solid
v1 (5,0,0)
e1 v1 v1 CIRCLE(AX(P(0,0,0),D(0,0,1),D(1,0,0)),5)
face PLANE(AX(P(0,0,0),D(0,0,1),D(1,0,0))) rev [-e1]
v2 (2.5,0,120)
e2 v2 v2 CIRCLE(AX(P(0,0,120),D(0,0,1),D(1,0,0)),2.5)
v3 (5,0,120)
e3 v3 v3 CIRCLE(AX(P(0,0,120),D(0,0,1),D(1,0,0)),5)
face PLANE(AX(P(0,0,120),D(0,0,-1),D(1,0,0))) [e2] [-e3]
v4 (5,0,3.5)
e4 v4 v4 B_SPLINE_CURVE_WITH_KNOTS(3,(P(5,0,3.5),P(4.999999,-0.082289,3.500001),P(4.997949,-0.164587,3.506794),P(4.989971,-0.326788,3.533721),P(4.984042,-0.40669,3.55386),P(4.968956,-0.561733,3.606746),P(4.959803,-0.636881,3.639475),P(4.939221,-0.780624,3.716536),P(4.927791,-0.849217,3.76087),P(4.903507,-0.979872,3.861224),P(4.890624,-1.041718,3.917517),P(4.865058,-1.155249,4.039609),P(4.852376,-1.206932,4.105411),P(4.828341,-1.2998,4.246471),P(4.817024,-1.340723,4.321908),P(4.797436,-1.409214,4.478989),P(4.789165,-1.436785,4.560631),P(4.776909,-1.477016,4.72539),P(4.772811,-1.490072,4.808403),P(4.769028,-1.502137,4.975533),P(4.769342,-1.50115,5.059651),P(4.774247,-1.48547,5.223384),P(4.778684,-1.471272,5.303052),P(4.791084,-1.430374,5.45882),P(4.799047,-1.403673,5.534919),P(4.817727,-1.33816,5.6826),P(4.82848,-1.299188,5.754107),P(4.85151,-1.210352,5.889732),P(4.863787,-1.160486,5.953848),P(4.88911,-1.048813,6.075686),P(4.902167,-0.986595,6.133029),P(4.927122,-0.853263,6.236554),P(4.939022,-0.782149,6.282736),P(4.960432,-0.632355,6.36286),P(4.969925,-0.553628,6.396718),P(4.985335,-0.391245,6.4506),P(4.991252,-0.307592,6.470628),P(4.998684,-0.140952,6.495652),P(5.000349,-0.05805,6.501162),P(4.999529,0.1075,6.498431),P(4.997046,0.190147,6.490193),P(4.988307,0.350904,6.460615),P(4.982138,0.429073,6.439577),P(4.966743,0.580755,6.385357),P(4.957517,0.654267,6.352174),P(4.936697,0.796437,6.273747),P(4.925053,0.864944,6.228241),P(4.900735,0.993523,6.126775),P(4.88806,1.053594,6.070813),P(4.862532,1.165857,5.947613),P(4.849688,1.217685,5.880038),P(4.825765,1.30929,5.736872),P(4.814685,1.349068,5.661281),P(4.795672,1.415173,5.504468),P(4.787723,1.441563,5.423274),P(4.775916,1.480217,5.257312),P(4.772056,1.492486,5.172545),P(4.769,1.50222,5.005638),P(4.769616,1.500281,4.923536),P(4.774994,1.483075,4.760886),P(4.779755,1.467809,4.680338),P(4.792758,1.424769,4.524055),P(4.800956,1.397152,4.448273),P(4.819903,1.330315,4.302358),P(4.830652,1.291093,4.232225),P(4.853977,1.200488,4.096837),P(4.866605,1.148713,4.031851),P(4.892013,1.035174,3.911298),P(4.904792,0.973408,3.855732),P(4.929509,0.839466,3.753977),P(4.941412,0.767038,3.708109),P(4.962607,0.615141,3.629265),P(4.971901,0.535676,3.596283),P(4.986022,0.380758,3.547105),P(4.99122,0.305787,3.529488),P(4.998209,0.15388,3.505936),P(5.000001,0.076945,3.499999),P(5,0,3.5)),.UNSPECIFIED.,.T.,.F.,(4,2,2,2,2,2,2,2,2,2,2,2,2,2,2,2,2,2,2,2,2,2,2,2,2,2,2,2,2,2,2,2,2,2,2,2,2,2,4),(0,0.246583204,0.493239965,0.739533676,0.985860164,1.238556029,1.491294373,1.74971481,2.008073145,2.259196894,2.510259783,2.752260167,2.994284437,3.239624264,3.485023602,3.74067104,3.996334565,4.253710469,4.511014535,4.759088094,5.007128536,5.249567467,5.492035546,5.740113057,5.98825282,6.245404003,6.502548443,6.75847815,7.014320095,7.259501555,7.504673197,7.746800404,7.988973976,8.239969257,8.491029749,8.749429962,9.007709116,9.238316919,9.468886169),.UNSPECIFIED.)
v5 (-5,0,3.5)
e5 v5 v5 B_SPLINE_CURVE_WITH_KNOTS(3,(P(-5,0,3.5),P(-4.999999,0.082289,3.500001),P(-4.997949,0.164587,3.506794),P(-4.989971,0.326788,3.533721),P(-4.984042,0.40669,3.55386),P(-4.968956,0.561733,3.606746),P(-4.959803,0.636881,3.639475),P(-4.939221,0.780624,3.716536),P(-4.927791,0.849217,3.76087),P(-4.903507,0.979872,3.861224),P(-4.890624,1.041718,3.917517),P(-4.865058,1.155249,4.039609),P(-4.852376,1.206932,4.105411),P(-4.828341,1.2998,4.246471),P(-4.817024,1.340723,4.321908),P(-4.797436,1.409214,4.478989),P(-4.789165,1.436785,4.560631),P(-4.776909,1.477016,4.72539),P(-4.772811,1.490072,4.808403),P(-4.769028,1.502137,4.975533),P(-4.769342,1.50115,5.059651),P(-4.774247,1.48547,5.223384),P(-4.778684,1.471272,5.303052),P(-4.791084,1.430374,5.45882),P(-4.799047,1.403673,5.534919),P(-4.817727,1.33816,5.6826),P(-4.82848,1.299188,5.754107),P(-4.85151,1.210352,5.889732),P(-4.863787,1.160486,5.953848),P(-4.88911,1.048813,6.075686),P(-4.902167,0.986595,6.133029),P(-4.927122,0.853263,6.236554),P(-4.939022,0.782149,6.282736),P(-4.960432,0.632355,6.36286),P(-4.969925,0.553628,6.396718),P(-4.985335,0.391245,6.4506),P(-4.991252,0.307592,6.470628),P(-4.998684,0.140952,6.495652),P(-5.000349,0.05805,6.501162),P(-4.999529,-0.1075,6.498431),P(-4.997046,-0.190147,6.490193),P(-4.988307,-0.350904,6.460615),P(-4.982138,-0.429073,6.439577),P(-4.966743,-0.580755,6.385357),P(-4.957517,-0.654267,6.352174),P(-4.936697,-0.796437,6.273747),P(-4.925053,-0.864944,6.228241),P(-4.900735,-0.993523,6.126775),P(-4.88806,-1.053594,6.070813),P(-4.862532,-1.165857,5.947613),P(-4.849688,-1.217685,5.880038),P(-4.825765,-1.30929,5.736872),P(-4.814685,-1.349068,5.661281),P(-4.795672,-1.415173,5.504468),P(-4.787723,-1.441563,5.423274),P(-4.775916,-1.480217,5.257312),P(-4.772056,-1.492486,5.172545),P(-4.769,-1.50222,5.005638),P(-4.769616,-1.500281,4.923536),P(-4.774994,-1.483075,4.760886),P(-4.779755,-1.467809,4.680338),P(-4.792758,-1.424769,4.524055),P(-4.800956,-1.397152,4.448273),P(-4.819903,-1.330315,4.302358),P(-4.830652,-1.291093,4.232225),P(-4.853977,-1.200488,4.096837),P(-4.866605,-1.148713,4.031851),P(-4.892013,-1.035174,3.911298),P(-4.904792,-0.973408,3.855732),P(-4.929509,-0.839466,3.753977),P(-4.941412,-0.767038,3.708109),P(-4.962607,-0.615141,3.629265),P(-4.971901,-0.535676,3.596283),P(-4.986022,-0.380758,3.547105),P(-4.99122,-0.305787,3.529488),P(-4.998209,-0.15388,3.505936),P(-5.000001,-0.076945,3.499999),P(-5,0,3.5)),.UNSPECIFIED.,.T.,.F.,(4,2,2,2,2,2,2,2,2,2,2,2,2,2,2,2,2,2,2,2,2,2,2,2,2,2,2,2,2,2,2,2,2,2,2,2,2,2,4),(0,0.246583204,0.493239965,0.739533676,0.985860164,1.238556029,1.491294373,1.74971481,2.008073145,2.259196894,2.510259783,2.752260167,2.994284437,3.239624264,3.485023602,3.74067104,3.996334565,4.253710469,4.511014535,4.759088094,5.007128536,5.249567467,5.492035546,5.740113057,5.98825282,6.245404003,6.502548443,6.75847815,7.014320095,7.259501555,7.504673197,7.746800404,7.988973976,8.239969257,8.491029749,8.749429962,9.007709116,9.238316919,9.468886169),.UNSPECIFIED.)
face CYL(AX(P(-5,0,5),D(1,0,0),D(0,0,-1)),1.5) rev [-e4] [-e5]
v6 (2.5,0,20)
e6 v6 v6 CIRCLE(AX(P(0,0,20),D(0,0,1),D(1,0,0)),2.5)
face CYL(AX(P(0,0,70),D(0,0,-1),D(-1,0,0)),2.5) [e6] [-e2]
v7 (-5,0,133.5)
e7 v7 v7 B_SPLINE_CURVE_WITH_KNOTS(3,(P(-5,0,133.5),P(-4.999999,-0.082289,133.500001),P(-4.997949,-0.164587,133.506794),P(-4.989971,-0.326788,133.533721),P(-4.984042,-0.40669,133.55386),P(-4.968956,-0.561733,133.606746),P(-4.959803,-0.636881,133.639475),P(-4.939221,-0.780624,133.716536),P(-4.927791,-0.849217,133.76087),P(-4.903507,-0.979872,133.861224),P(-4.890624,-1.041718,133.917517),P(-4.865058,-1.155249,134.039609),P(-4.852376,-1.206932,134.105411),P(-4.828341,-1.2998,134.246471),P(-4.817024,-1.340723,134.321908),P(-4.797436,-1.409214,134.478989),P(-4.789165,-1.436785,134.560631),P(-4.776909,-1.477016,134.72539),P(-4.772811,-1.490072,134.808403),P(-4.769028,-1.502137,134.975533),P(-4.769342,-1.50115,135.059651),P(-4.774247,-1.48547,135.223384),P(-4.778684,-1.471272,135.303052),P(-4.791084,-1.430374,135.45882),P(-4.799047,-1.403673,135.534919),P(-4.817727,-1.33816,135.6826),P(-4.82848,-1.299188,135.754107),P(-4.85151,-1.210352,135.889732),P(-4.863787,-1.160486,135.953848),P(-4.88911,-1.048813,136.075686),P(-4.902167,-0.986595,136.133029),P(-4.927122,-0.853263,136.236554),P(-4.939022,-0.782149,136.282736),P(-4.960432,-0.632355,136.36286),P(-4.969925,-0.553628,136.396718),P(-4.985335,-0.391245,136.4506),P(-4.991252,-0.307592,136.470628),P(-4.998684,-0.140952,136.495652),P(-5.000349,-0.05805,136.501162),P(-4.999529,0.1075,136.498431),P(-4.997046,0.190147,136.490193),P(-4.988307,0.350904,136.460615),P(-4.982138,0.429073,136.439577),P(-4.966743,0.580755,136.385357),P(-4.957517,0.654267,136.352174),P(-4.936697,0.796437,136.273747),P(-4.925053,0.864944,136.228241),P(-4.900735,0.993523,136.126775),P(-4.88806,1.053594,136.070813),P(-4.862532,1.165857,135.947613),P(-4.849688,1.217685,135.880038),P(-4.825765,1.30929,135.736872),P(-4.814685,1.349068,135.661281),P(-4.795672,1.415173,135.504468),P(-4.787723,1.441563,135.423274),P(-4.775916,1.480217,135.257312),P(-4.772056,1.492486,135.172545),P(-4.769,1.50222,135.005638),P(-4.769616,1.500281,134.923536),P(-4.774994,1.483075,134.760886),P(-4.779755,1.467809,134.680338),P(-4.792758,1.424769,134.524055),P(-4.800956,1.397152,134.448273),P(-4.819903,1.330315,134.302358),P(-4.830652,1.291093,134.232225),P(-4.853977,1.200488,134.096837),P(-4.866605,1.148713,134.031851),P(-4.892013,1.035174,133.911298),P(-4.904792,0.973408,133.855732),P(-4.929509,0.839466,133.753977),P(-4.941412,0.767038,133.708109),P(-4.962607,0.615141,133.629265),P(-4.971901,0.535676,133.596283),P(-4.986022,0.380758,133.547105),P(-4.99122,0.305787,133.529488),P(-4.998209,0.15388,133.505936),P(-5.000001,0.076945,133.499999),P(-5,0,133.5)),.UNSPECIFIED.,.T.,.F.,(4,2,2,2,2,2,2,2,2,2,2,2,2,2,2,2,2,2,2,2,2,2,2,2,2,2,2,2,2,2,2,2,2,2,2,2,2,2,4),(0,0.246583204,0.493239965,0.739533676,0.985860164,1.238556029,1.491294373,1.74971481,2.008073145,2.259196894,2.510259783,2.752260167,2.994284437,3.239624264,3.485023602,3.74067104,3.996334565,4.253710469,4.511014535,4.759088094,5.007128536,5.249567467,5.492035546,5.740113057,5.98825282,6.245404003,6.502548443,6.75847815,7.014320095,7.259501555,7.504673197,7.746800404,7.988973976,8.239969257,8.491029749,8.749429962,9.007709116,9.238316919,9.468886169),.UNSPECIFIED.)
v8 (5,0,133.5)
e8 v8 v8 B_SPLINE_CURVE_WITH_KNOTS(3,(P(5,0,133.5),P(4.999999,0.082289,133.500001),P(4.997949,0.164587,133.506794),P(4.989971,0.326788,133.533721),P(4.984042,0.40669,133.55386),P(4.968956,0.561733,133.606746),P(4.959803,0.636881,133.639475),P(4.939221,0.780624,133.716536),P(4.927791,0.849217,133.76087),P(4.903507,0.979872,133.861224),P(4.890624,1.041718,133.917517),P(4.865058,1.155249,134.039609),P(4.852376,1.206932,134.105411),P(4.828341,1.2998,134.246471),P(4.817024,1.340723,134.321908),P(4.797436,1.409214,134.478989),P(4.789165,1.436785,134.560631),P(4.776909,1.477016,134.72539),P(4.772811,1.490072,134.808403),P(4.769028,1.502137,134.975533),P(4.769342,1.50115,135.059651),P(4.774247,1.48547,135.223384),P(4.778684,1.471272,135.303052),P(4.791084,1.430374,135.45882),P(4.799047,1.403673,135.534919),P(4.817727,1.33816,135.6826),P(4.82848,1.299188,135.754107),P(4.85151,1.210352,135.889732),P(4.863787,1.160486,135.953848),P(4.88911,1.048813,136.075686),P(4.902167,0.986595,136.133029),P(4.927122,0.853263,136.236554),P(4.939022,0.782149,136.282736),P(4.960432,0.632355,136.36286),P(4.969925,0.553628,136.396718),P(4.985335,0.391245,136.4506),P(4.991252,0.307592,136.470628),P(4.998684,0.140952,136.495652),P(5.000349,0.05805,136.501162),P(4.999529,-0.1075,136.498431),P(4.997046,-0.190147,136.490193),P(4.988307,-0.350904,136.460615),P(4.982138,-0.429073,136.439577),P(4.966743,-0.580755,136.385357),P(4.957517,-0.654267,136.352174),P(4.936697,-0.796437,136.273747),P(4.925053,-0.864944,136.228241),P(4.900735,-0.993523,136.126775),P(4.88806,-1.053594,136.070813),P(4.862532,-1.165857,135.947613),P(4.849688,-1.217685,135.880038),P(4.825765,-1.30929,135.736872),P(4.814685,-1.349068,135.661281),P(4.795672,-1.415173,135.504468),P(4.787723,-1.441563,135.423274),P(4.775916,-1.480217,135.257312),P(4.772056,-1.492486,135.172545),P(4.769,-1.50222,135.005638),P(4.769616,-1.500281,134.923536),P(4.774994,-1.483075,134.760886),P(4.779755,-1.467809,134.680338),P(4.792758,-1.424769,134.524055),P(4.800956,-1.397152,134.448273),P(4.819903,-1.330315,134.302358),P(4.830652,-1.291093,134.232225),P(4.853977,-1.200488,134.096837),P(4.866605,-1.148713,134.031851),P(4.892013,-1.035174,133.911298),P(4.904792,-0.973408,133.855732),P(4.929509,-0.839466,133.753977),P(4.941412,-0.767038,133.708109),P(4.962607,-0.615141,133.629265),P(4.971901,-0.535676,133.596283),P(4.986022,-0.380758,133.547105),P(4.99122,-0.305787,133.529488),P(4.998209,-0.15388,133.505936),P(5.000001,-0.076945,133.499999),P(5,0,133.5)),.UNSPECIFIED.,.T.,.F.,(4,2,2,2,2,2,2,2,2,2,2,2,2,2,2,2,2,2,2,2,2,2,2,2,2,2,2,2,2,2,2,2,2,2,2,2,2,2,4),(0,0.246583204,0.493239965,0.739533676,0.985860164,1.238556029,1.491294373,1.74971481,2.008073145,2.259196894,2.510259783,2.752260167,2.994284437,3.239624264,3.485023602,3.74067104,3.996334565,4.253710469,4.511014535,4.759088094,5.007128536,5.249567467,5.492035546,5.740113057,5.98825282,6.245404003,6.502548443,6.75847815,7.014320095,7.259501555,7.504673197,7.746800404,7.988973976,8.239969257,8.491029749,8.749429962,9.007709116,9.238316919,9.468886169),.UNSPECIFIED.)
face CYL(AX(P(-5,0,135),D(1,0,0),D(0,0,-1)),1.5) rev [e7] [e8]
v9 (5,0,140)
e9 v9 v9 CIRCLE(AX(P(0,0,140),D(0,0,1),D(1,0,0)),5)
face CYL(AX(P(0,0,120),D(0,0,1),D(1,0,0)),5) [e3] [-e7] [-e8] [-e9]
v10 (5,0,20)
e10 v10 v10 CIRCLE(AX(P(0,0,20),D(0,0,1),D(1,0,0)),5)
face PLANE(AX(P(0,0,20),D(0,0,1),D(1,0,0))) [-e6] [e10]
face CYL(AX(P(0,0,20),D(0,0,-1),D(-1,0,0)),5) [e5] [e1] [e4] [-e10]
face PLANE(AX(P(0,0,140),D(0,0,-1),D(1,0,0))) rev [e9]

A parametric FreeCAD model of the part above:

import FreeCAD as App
import Part
import Sketcher
from FreeCAD import Vector

doc = App.newDocument("Part")
body = doc.addObject("PartDesign::Body", "Body")

# Sketch on XY plane
sketch1 = doc.addObject("Sketcher::SketchObject", "Sketch")
body.addObject(sketch1)
sketch1.AttachmentSupport = (doc.XY_Plane, [""])
sketch1.MapMode = "FlatFace"
sketch1.addGeometry(Part.Circle(Vector(0, 0, 0), Vector(0, 0, 1), 5), False)
sketch1.addConstraint([
    Sketcher.Constraint("Coincident", 0, 3, -1, 1),
    Sketcher.Constraint("Diameter", 0, 10.0),
])
pad1 = doc.addObject("PartDesign::Pad", "Pad")
body.addObject(pad1)
pad1.Profile = sketch1
pad1.Length = 20

# Sketch on XY plane
sketch2 = doc.addObject("Sketcher::SketchObject", "Sketch001")
body.addObject(sketch2)
sketch2.AttachmentSupport = (doc.XY_Plane, [""])
sketch2.MapMode = "FlatFace"
sketch2.AttachmentOffset = App.Placement(Vector(0, 0, 20), App.Rotation())
sketch2.addGeometry(Part.Circle(Vector(0, 0, 0), Vector(0, 0, 1), 2.5), False)
sketch2.addConstraint([
    Sketcher.Constraint("Coincident", 0, 3, -1, 1),
    Sketcher.Constraint("Diameter", 0, 5.0),
])
pad2 = doc.addObject("PartDesign::Pad", "Pad001")
body.addObject(pad2)
pad2.Profile = sketch2
pad2.Length = 50

# Sketch on YZ plane
sketch3 = doc.addObject("Sketcher::SketchObject", "Sketch002")
body.addObject(sketch3)
sketch3.AttachmentSupport = (doc.YZ_Plane, [""])
sketch3.MapMode = "FlatFace"
sketch3.AttachmentOffset = App.Placement(Vector(0, 0, 5), App.Rotation())
sketch3.addGeometry(Part.Circle(Vector(0, 5, 0), Vector(0, 0, 1), 1.5), False)
sketch3.addConstraint([
    Sketcher.Constraint("PointOnObject", 0, 3, -2),
    Sketcher.Constraint("Diameter", 0, 3.0),
    Sketcher.Constraint("DistanceY", -1, 1, 0, 3, 5.0),
])
pocket1 = doc.addObject("PartDesign::Pocket", "Pocket")
body.addObject(pocket1)
pocket1.Profile = sketch3
pocket1.Type = "ThroughAll"
doc.recompute()

datumplane = doc.addObject("PartDesign::Plane", "DatumPlane")
body.addObject(datumplane)
datumplane.AttachmentSupport = (doc.XY_Plane, [""])
datumplane.MapMode = "FlatFace"
datumplane.AttachmentOffset = App.Placement(Vector(0, 0, 70), App.Rotation())
mirrored = doc.addObject("PartDesign::Mirrored", "Mirrored")
body.addObject(mirrored)
mirrored.Originals = [pad2]
mirrored.MirrorPlane = (datumplane, [""])
body.Tip = mirrored
doc.recompute()

datumplane2 = doc.addObject("PartDesign::Plane", "DatumPlane001")
body.addObject(datumplane2)
datumplane2.AttachmentSupport = (doc.XY_Plane, [""])
datumplane2.MapMode = "FlatFace"
datumplane2.AttachmentOffset = App.Placement(Vector(0, 0, 70), App.Rotation())
mirrored2 = doc.addObject("PartDesign::Mirrored", "Mirrored001")
body.addObject(mirrored2)
mirrored2.Originals = [pad1]
mirrored2.MirrorPlane = (datumplane2, [""])
body.Tip = mirrored2

# Sketch on YZ plane
sketch4 = doc.addObject("Sketcher::SketchObject", "Sketch003")
body.addObject(sketch4)
sketch4.AttachmentSupport = (doc.YZ_Plane, [""])
sketch4.MapMode = "FlatFace"
sketch4.AttachmentOffset = App.Placement(Vector(0, 0, 5), App.Rotation())
sketch4.addGeometry(Part.Circle(Vector(0, 135, 0), Vector(0, 0, 1), 1.5), False)
sketch4.addConstraint([
    Sketcher.Constraint("PointOnObject", 0, 3, -2),
    Sketcher.Constraint("Diameter", 0, 3.0),
    Sketcher.Constraint("DistanceY", -1, 1, 0, 3, 135.0),
])
pocket2 = doc.addObject("PartDesign::Pocket", "Pocket001")
body.addObject(pocket2)
pocket2.Profile = sketch4
pocket2.Type = "ThroughAll"

doc.recompute()
